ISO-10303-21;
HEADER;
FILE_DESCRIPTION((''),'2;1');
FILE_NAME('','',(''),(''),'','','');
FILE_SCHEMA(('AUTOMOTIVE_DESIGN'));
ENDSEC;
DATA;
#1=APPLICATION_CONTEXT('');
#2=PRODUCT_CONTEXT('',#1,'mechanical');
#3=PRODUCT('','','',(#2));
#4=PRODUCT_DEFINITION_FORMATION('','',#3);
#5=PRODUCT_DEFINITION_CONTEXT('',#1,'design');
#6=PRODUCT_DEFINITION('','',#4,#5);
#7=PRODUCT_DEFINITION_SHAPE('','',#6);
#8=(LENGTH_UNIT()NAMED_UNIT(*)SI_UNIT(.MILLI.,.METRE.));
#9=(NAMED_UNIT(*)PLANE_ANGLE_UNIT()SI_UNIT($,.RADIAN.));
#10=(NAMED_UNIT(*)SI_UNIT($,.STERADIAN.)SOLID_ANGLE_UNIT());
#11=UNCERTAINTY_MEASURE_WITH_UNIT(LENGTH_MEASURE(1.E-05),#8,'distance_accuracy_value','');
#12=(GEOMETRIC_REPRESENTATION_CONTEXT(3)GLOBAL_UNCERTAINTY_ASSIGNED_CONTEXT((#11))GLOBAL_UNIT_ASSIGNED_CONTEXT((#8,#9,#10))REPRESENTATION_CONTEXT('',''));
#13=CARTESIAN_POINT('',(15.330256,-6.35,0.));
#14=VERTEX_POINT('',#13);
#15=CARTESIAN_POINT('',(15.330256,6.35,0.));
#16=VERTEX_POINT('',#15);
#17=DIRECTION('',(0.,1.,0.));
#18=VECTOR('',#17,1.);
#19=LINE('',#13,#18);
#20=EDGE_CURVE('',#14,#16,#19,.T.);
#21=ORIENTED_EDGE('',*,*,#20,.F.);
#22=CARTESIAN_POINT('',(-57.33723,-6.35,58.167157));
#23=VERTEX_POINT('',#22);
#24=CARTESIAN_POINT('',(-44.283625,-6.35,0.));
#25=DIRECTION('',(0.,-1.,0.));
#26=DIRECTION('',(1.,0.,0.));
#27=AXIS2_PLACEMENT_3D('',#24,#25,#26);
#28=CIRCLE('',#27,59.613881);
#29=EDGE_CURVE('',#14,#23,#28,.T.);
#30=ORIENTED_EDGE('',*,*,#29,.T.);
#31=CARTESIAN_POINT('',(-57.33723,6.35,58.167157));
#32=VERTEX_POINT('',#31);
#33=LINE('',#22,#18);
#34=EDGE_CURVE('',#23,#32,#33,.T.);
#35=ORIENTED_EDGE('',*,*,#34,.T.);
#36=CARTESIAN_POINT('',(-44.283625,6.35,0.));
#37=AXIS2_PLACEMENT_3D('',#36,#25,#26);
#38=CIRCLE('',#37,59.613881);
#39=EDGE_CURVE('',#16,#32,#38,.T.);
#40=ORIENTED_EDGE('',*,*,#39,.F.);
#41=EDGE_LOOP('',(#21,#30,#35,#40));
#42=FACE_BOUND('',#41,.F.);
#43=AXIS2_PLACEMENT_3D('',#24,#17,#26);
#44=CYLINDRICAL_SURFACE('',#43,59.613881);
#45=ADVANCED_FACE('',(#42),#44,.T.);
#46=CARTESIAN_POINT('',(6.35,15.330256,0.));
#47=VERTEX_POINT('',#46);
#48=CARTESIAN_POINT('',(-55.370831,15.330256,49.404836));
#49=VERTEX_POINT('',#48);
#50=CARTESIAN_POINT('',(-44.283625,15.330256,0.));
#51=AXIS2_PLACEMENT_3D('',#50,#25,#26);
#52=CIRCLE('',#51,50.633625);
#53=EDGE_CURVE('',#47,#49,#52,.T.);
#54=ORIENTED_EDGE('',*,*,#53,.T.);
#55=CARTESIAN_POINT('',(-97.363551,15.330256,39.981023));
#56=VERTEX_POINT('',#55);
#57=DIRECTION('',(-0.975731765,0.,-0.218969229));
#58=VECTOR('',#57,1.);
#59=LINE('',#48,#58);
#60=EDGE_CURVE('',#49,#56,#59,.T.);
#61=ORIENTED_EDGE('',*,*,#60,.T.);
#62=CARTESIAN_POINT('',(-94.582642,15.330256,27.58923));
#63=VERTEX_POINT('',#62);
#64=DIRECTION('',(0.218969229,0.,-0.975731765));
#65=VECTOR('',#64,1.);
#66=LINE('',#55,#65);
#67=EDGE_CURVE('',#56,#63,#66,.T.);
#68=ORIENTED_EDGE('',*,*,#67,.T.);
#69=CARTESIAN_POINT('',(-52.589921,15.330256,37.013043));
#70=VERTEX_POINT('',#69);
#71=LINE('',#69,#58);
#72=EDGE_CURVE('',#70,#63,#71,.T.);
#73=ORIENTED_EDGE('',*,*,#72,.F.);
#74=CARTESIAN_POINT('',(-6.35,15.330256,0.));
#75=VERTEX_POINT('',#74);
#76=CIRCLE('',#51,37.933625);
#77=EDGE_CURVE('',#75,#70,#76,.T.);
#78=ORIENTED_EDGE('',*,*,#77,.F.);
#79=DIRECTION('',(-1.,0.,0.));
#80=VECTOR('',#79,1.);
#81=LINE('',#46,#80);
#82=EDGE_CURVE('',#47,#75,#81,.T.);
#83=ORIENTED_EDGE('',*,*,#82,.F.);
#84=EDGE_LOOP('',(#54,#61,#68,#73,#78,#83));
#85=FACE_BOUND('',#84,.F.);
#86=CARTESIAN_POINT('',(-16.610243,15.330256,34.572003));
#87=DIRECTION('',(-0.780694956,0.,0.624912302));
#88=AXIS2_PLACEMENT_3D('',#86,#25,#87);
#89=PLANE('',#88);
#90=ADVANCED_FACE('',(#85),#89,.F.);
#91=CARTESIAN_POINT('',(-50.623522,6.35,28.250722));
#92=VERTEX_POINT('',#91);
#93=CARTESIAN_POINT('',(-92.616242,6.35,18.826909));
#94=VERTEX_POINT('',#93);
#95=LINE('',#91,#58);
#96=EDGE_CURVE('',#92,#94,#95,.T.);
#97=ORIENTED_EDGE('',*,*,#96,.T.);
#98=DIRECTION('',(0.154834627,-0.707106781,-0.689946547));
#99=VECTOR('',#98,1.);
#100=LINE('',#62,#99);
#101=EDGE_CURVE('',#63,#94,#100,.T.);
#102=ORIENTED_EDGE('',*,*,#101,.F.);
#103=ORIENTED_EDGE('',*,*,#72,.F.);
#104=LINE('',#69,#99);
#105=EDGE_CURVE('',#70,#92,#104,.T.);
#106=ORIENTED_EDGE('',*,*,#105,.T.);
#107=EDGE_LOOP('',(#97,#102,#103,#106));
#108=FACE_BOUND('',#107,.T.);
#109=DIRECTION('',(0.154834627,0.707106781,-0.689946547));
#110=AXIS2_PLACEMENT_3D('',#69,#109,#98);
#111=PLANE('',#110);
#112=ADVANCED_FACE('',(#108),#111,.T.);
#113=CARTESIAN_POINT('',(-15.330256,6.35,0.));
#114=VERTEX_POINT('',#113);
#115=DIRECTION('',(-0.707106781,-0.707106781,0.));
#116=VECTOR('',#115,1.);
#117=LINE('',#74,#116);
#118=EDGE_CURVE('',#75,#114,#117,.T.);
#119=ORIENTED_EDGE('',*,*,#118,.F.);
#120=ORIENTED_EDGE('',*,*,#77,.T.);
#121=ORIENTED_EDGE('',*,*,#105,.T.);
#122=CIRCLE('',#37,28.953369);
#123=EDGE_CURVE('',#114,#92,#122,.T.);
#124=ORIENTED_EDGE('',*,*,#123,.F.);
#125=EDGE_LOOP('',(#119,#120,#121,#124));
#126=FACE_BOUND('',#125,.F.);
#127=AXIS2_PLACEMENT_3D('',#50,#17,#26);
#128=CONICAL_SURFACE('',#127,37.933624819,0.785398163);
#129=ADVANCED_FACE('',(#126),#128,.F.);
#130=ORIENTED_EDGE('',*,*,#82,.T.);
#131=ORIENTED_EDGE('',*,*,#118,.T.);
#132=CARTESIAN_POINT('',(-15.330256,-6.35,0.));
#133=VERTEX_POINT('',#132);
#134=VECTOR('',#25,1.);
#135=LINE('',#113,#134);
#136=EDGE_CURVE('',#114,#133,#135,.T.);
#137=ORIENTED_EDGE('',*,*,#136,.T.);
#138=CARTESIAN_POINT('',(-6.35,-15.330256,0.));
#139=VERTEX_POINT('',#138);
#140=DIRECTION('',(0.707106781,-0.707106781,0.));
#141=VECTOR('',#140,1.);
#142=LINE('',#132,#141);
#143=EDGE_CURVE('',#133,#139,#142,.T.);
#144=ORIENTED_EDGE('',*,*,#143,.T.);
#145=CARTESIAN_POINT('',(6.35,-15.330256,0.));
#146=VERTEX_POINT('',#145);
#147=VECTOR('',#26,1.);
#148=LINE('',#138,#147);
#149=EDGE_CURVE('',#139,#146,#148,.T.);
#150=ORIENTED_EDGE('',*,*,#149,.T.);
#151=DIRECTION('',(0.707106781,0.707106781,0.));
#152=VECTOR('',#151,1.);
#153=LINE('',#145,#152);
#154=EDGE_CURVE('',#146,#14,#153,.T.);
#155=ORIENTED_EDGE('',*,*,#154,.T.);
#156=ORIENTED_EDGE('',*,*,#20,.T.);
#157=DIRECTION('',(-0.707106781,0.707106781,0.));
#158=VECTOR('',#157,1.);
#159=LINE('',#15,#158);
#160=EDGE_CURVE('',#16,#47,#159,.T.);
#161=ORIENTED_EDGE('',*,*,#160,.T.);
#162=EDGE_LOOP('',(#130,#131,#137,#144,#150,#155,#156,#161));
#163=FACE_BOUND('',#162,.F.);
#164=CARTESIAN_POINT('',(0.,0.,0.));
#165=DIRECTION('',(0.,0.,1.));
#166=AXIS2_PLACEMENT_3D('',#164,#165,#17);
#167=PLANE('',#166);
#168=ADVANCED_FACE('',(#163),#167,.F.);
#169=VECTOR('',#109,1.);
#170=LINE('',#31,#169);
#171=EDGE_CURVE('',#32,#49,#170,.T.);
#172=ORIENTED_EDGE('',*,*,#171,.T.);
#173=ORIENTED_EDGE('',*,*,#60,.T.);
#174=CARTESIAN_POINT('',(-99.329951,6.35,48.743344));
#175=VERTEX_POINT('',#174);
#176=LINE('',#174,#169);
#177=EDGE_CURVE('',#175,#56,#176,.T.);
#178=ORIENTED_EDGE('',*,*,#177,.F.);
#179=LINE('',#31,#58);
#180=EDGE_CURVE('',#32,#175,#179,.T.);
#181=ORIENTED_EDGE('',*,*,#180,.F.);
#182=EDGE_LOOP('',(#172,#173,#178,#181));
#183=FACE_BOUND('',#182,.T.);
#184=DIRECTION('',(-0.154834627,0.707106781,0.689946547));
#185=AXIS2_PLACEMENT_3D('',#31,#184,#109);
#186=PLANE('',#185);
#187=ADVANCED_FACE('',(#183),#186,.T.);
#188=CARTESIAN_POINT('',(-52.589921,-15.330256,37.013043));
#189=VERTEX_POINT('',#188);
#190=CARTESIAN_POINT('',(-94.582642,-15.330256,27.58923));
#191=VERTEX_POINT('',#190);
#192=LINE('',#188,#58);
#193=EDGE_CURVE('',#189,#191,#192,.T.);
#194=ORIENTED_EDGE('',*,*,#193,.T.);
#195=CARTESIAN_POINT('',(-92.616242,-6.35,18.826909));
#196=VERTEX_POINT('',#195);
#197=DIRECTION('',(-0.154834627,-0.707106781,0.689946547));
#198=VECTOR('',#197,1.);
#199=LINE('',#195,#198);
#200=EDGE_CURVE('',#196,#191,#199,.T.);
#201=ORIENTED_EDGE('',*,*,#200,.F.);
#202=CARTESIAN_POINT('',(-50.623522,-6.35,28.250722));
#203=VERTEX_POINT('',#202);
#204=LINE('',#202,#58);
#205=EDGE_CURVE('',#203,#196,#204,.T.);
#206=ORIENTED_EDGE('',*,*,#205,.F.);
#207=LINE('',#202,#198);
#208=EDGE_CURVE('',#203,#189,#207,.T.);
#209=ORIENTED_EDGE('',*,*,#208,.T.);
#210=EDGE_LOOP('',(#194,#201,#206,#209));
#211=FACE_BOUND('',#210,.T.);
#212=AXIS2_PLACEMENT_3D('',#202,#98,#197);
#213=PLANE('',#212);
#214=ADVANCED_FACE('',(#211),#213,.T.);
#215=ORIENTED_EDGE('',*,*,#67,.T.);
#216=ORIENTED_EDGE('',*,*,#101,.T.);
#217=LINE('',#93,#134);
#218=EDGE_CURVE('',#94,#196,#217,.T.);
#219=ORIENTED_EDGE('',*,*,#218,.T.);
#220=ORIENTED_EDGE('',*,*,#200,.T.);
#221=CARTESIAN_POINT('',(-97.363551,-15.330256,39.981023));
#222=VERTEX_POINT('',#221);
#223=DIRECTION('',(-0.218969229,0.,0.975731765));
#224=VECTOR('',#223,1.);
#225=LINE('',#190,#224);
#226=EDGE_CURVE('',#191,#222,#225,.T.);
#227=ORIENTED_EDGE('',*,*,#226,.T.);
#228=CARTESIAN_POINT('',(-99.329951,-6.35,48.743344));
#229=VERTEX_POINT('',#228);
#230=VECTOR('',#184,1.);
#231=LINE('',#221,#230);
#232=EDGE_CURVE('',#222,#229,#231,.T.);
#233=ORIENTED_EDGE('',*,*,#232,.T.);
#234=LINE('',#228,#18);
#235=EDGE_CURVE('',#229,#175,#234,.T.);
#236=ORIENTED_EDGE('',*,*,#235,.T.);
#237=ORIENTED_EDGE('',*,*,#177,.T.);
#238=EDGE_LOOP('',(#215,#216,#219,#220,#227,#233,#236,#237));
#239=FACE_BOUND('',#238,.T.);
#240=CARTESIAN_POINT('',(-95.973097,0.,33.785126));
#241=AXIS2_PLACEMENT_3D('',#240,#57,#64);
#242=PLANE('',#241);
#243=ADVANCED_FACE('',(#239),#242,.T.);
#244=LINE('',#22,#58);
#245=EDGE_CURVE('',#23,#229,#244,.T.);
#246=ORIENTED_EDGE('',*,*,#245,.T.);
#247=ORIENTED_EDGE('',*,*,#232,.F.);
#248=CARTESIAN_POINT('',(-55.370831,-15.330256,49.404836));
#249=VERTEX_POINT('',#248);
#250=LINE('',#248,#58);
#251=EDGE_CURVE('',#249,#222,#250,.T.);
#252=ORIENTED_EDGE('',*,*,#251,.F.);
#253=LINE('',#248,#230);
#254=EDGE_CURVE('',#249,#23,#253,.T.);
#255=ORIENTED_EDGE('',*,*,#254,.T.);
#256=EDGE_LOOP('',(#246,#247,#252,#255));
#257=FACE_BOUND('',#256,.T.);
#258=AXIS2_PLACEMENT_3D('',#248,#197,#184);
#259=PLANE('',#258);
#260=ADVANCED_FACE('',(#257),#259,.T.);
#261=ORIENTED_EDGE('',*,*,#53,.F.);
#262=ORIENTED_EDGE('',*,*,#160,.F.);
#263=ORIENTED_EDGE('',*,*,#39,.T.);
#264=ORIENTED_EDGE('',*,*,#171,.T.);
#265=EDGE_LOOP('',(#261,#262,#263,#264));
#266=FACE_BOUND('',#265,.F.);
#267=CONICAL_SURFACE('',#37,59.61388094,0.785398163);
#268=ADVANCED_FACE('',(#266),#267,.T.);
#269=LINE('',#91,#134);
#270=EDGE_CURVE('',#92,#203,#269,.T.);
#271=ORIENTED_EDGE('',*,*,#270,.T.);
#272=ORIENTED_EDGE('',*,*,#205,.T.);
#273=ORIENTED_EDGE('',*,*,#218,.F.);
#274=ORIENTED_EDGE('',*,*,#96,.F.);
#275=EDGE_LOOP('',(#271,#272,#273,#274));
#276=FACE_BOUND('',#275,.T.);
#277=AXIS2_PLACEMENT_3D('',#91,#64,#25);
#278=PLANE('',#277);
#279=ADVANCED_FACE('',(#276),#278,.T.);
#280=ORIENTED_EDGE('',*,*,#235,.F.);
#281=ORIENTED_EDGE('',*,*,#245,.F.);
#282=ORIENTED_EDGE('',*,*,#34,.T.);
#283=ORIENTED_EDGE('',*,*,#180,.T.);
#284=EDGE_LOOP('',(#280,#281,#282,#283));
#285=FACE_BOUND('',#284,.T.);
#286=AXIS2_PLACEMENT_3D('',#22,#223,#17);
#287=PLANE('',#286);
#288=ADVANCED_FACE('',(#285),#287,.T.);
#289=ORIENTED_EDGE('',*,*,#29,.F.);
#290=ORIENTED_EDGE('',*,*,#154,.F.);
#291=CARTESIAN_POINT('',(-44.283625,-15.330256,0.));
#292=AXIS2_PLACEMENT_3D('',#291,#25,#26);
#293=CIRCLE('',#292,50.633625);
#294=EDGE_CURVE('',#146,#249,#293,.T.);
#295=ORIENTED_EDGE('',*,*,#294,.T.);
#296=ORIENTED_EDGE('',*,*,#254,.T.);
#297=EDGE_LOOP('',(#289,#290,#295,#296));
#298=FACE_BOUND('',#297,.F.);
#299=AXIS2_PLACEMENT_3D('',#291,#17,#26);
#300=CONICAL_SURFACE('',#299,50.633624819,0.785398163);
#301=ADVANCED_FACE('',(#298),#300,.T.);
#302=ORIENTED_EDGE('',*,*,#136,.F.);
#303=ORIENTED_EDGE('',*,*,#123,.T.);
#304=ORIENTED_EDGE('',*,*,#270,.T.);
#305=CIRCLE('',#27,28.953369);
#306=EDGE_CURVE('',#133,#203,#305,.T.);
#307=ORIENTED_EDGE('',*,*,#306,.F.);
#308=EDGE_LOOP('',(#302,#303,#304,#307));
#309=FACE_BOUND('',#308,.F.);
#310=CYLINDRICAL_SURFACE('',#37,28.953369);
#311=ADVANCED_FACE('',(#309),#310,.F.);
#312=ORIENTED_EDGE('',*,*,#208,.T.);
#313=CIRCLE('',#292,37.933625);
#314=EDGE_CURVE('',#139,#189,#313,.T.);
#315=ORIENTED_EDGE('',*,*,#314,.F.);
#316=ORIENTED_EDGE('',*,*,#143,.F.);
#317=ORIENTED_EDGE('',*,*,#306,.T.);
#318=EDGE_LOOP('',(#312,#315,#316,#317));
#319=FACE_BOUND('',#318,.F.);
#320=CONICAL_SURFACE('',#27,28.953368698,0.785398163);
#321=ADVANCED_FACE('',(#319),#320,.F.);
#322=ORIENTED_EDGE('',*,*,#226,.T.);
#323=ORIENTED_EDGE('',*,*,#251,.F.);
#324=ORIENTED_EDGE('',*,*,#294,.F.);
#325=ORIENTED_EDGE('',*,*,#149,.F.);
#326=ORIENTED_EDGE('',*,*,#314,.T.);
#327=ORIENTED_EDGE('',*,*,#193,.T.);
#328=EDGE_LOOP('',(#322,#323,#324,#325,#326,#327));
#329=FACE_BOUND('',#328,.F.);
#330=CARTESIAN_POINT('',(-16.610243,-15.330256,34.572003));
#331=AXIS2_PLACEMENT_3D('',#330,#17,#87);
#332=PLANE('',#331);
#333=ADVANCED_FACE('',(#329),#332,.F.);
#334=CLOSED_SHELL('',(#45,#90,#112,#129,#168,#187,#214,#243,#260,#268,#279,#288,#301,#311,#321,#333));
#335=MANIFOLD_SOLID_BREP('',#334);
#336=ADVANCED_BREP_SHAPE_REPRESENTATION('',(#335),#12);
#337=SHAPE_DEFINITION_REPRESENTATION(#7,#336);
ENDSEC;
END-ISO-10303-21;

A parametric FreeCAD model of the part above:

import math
import FreeCAD as App
import Part
import Sketcher
Q = App.Units.Quantity


def add_polygon(sketch, points):
    """Adds a closed chain of lines whose ends are joined by coincident constraints."""
    first, n = sketch.GeometryCount, len(points)
    for a, b in zip(points, points[1:] + points[:1]):
        sketch.addGeometry(Part.LineSegment(App.Vector(*a, 0), App.Vector(*b, 0)), False)
    for i in range(n):
        sketch.addConstraint(Sketcher.Constraint("Coincident", first + i, 2, first + (i + 1) % n, 1))

doc = App.newDocument("Part")
body = doc.addObject("PartDesign::Body", "Body")

sketch1 = body.newObject("Sketcher::SketchObject", "Sketch")
sketch1.AttachmentSupport = (doc.getObject("XY_Plane"), [""])
sketch1.MapMode = "FlatFace"
add_polygon(sketch1, [(6.35, 15.330256), (-6.35, 15.330256), (-15.330256, 6.35), (-15.330256, -6.35), (-6.35, -15.330256), (6.35, -15.330256), (15.330256, -6.35), (15.330256, 6.35)])
sketch1.addConstraint([
    Sketcher.Constraint("Horizontal", 0),
    Sketcher.Constraint("Vertical", 2),
    Sketcher.Constraint("Horizontal", 4),
    Sketcher.Constraint("Vertical", 6),
    Sketcher.Constraint("Symmetric", 0, 2, 4, 2, -1, 1),
    Sketcher.Constraint("Symmetric", 1, 2, 5, 2, -1, 1),
    Sketcher.Constraint("Perpendicular", 1, 3),
    Sketcher.Constraint("Perpendicular", 5, 7),
    Sketcher.Constraint("Horizontal", 2, 2, 5, 2),
    Sketcher.Constraint("Horizontal", 1, 2, 6, 2),
    Sketcher.Constraint("Vertical", 0, 2, 3, 2),
    Sketcher.Constraint("Equal", 4, 2),
    Sketcher.Constraint("DistanceX", 0, 2, 0, 1, Q("0.5 in")),
    Sketcher.Constraint("Distance", 1, Q("0.5 in")),
])

sketch2 = body.newObject("Sketcher::SketchObject", "Sketch001")
sketch2.AttachmentSupport = (doc.getObject("XZ_Plane"), [""])
sketch2.MapMode = "FlatFace"
sketch2.addGeometry([
    Part.ArcOfCircle(Part.Circle(App.Vector(-44.283625, 0, 0), App.Vector(0, 0, 1), 44.283625), math.radians(0), math.radians(102.648498)),
    Part.LineSegment(App.Vector(-53.980376, 43.208939, 0), App.Vector(-95.973097, 33.785126, 0)),
], False)
sketch2.addConstraint([
    Sketcher.Constraint("Tangent", 0, 2, 1, 1),
    Sketcher.Constraint("Coincident", 0, 1, -1, 1),
    Sketcher.Constraint("PointOnObject", 0, 3, -1),
    Sketcher.Constraint("Radius", 0, 44.283625),
    Sketcher.Constraint("DistanceY", -1, 1, 0, 2, 43.208939),
    Sketcher.Constraint("DistanceX", 1, 2, 0, 2, 41.992721),
])
doc.recompute()

additivepipe = body.newObject("PartDesign::AdditivePipe", "AdditivePipe")
additivepipe.Profile = sketch1
additivepipe.Spine = (sketch2, ["Edge1", "Edge2"])

doc.recompute()
